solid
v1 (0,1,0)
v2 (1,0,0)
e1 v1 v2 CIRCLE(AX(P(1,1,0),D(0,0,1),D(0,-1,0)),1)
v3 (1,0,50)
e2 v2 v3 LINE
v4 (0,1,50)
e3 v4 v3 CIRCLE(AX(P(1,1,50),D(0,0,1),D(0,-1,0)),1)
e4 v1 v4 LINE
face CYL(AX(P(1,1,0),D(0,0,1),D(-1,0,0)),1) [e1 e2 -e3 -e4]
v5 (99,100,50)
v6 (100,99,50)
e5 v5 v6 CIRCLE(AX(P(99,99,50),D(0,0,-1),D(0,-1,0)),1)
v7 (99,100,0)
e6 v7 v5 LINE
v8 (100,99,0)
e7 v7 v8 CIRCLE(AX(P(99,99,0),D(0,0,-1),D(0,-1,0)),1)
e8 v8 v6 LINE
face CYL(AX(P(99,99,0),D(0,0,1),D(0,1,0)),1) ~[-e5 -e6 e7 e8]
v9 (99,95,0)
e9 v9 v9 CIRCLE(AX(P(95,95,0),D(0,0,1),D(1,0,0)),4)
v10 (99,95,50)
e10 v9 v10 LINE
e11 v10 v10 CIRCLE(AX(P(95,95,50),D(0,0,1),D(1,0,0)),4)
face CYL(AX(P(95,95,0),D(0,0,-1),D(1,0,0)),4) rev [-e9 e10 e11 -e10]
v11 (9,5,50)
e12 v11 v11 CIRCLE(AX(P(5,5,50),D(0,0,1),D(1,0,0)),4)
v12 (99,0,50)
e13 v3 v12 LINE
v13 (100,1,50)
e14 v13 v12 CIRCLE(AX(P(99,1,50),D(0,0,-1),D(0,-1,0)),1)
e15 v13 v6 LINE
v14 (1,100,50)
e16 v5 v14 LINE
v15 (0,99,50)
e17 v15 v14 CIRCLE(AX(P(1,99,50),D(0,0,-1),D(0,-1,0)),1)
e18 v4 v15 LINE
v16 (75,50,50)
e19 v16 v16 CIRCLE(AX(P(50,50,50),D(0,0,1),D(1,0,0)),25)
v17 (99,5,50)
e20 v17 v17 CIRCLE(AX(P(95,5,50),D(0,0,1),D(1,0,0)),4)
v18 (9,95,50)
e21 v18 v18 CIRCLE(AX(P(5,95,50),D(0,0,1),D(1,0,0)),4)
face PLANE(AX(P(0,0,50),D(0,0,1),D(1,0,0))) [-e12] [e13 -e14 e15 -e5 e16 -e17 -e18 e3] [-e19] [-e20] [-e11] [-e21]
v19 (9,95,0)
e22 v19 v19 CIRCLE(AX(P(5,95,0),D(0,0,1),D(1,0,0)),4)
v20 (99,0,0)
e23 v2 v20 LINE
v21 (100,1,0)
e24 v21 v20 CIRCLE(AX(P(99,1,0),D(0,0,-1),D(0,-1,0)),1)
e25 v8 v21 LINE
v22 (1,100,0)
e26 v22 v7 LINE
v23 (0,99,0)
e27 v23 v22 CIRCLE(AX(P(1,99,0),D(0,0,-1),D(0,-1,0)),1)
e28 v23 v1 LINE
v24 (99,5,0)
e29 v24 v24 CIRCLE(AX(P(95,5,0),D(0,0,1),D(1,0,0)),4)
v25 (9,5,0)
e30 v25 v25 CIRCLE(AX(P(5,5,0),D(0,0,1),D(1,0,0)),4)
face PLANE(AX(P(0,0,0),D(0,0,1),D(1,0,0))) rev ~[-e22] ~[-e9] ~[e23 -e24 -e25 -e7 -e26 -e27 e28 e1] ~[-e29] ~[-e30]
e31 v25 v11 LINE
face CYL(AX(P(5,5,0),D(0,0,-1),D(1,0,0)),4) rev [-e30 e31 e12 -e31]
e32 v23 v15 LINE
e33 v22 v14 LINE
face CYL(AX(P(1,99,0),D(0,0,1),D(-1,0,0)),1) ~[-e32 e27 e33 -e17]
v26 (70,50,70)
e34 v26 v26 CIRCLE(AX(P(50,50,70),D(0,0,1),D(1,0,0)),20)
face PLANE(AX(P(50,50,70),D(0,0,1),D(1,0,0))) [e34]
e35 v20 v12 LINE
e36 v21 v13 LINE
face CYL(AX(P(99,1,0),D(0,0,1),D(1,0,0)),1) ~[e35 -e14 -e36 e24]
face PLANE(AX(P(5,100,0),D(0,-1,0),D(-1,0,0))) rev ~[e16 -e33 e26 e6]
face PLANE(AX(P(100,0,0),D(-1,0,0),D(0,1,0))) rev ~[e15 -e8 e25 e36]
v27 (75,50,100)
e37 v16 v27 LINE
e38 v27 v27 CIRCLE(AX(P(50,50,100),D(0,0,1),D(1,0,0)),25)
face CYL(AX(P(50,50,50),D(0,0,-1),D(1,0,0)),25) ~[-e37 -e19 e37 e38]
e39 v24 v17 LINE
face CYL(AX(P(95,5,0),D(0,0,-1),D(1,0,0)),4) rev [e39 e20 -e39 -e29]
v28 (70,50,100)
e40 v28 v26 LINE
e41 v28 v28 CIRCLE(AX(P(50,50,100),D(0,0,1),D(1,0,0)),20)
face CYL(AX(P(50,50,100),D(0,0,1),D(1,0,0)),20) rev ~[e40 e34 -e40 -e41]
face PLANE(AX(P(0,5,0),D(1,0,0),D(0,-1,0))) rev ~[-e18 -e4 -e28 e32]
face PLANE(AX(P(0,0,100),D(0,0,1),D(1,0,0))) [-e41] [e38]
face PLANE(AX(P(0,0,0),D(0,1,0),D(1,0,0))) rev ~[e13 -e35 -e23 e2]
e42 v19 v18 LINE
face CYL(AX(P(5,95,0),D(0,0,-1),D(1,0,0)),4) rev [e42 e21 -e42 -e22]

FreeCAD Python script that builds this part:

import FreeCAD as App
import Part
import Sketcher
Q = App.Units.Quantity


def edges_at(feature, points):
    """Names of the edges that pass closest to the given points."""
    edges = feature.Shape.Edges
    near = lambda p: min(range(len(edges)), key=lambda i: edges[i].distToShape(Part.Vertex(*p))[0])
    return sorted({f"Edge{near(p) + 1}" for p in points})


def add_polygon(sketch, points):
    """Adds a closed chain of lines whose ends are joined by coincident constraints."""
    first, n = sketch.GeometryCount, len(points)
    for a, b in zip(points, points[1:] + points[:1]):
        sketch.addGeometry(Part.LineSegment(App.Vector(*a, 0), App.Vector(*b, 0)), False)
    for i in range(n):
        sketch.addConstraint(Sketcher.Constraint("Coincident", first + i, 2, first + (i + 1) % n, 1))

doc = App.newDocument("Part")
body = doc.addObject("PartDesign::Body", "Body")

sketch1 = body.newObject("Sketcher::SketchObject", "Sketch")
sketch1.AttachmentSupport = (doc.getObject("XY_Plane"), [""])
sketch1.MapMode = "FlatFace"
add_polygon(sketch1, [(0, 100), (0, 0), (100, 0), (100, 100)])
sketch1.addGeometry(Part.Circle(App.Vector(5, 5, 0), App.Vector(0, 0, 1), 4), False)
sketch1.addGeometry(Part.Circle(App.Vector(95, 5, 0), App.Vector(0, 0, 1), 4), False)
sketch1.addGeometry(Part.Circle(App.Vector(5, 95, 0), App.Vector(0, 0, 1), 4), False)
sketch1.addGeometry(Part.Circle(App.Vector(95, 95, 0), App.Vector(0, 0, 1), 4), False)
sketch1.addConstraint(Sketcher.Constraint("Vertical", 0))
sketch1.addConstraint(Sketcher.Constraint("Horizontal", 1))
sketch1.addConstraint(Sketcher.Constraint("Vertical", 2))
sketch1.addConstraint(Sketcher.Constraint("Horizontal", 3))
sketch1.addConstraint(Sketcher.Constraint("Coincident", 0, 2, -1, 1))
sketch1.addConstraint(Sketcher.Constraint("Equal", 4, 5))
sketch1.addConstraint(Sketcher.Constraint("Equal", 5, 6))
sketch1.addConstraint(Sketcher.Constraint("Equal", 6, 7))
sketch1.addConstraint(Sketcher.Constraint("Horizontal", 4, 3, 5, 3))
sketch1.addConstraint(Sketcher.Constraint("Horizontal", 6, 3, 7, 3))
sketch1.addConstraint(Sketcher.Constraint("Vertical", 4, 3, 6, 3))
sketch1.addConstraint(Sketcher.Constraint("Vertical", 5, 3, 7, 3))
sketch1.addConstraint(Sketcher.Constraint("Equal", 3, 0))
sketch1.addConstraint(Sketcher.Constraint("Diameter", 4, Q("8 mm")))
sketch1.addConstraint(Sketcher.Constraint("DistanceX", 1, 1, 1, 2, Q("100 mm")))
sketch1.addConstraint(Sketcher.Constraint("DistanceX", -1, 1, 4, 3, Q("5 mm")))
sketch1.addConstraint(Sketcher.Constraint("DistanceY", -1, 1, 4, 3, Q("5 mm")))
sketch1.addConstraint(Sketcher.Constraint("DistanceX", -1, 1, 5, 3, Q("95 mm")))
sketch1.addConstraint(Sketcher.Constraint("DistanceY", -1, 1, 6, 3, Q("95 mm")))
pad1 = body.newObject("PartDesign::Pad", "Pad")
pad1.Profile = sketch1
pad1.Length = 50
doc.recompute()

fillet = body.newObject("PartDesign::Fillet", "Fillet")
fillet.Base = (pad1, edges_at(pad1, [
    (100, 0, 25),
    (0, 0, 25),
    (100, 100, 25),
    (0, 100, 25),
]))
fillet.Radius = 1

sketch2 = body.newObject("Sketcher::SketchObject", "Sketch001")
sketch2.AttachmentSupport = (doc.getObject("XY_Plane"), [""])
sketch2.MapMode = "FlatFace"
sketch2.AttachmentOffset = App.Placement(App.Vector(0, 0, 50), App.Rotation())
sketch2.addGeometry(Part.Circle(App.Vector(50, 50, 0), App.Vector(0, 0, 1), 25), False)
sketch2.addConstraint(Sketcher.Constraint("Diameter", 0, Q("50 mm")))
sketch2.addConstraint(Sketcher.Constraint("DistanceX", -1, 1, 0, 3, Q("50 mm")))
sketch2.addConstraint(Sketcher.Constraint("DistanceY", -1, 1, 0, 3, Q("50 mm")))
pad2 = body.newObject("PartDesign::Pad", "Pad001")
pad2.Profile = sketch2
pad2.Length = 50

sketch3 = body.newObject("Sketcher::SketchObject", "Sketch002")
sketch3.AttachmentSupport = (doc.getObject("XY_Plane"), [""])
sketch3.MapMode = "FlatFace"
sketch3.AttachmentOffset = App.Placement(App.Vector(0, 0, 100), App.Rotation())
sketch3.addGeometry(Part.Circle(App.Vector(50, 50, 0), App.Vector(0, 0, 1), 20), False)
sketch3.addConstraint(Sketcher.Constraint("Diameter", 0, Q("40 mm")))
sketch3.addConstraint(Sketcher.Constraint("DistanceX", -1, 1, 0, 3, Q("50 mm")))
sketch3.addConstraint(Sketcher.Constraint("DistanceY", -1, 1, 0, 3, Q("50 mm")))
pocket1 = body.newObject("PartDesign::Pocket", "Pocket")
pocket1.Profile = sketch3
pocket1.Length = 30

doc.recompute()
